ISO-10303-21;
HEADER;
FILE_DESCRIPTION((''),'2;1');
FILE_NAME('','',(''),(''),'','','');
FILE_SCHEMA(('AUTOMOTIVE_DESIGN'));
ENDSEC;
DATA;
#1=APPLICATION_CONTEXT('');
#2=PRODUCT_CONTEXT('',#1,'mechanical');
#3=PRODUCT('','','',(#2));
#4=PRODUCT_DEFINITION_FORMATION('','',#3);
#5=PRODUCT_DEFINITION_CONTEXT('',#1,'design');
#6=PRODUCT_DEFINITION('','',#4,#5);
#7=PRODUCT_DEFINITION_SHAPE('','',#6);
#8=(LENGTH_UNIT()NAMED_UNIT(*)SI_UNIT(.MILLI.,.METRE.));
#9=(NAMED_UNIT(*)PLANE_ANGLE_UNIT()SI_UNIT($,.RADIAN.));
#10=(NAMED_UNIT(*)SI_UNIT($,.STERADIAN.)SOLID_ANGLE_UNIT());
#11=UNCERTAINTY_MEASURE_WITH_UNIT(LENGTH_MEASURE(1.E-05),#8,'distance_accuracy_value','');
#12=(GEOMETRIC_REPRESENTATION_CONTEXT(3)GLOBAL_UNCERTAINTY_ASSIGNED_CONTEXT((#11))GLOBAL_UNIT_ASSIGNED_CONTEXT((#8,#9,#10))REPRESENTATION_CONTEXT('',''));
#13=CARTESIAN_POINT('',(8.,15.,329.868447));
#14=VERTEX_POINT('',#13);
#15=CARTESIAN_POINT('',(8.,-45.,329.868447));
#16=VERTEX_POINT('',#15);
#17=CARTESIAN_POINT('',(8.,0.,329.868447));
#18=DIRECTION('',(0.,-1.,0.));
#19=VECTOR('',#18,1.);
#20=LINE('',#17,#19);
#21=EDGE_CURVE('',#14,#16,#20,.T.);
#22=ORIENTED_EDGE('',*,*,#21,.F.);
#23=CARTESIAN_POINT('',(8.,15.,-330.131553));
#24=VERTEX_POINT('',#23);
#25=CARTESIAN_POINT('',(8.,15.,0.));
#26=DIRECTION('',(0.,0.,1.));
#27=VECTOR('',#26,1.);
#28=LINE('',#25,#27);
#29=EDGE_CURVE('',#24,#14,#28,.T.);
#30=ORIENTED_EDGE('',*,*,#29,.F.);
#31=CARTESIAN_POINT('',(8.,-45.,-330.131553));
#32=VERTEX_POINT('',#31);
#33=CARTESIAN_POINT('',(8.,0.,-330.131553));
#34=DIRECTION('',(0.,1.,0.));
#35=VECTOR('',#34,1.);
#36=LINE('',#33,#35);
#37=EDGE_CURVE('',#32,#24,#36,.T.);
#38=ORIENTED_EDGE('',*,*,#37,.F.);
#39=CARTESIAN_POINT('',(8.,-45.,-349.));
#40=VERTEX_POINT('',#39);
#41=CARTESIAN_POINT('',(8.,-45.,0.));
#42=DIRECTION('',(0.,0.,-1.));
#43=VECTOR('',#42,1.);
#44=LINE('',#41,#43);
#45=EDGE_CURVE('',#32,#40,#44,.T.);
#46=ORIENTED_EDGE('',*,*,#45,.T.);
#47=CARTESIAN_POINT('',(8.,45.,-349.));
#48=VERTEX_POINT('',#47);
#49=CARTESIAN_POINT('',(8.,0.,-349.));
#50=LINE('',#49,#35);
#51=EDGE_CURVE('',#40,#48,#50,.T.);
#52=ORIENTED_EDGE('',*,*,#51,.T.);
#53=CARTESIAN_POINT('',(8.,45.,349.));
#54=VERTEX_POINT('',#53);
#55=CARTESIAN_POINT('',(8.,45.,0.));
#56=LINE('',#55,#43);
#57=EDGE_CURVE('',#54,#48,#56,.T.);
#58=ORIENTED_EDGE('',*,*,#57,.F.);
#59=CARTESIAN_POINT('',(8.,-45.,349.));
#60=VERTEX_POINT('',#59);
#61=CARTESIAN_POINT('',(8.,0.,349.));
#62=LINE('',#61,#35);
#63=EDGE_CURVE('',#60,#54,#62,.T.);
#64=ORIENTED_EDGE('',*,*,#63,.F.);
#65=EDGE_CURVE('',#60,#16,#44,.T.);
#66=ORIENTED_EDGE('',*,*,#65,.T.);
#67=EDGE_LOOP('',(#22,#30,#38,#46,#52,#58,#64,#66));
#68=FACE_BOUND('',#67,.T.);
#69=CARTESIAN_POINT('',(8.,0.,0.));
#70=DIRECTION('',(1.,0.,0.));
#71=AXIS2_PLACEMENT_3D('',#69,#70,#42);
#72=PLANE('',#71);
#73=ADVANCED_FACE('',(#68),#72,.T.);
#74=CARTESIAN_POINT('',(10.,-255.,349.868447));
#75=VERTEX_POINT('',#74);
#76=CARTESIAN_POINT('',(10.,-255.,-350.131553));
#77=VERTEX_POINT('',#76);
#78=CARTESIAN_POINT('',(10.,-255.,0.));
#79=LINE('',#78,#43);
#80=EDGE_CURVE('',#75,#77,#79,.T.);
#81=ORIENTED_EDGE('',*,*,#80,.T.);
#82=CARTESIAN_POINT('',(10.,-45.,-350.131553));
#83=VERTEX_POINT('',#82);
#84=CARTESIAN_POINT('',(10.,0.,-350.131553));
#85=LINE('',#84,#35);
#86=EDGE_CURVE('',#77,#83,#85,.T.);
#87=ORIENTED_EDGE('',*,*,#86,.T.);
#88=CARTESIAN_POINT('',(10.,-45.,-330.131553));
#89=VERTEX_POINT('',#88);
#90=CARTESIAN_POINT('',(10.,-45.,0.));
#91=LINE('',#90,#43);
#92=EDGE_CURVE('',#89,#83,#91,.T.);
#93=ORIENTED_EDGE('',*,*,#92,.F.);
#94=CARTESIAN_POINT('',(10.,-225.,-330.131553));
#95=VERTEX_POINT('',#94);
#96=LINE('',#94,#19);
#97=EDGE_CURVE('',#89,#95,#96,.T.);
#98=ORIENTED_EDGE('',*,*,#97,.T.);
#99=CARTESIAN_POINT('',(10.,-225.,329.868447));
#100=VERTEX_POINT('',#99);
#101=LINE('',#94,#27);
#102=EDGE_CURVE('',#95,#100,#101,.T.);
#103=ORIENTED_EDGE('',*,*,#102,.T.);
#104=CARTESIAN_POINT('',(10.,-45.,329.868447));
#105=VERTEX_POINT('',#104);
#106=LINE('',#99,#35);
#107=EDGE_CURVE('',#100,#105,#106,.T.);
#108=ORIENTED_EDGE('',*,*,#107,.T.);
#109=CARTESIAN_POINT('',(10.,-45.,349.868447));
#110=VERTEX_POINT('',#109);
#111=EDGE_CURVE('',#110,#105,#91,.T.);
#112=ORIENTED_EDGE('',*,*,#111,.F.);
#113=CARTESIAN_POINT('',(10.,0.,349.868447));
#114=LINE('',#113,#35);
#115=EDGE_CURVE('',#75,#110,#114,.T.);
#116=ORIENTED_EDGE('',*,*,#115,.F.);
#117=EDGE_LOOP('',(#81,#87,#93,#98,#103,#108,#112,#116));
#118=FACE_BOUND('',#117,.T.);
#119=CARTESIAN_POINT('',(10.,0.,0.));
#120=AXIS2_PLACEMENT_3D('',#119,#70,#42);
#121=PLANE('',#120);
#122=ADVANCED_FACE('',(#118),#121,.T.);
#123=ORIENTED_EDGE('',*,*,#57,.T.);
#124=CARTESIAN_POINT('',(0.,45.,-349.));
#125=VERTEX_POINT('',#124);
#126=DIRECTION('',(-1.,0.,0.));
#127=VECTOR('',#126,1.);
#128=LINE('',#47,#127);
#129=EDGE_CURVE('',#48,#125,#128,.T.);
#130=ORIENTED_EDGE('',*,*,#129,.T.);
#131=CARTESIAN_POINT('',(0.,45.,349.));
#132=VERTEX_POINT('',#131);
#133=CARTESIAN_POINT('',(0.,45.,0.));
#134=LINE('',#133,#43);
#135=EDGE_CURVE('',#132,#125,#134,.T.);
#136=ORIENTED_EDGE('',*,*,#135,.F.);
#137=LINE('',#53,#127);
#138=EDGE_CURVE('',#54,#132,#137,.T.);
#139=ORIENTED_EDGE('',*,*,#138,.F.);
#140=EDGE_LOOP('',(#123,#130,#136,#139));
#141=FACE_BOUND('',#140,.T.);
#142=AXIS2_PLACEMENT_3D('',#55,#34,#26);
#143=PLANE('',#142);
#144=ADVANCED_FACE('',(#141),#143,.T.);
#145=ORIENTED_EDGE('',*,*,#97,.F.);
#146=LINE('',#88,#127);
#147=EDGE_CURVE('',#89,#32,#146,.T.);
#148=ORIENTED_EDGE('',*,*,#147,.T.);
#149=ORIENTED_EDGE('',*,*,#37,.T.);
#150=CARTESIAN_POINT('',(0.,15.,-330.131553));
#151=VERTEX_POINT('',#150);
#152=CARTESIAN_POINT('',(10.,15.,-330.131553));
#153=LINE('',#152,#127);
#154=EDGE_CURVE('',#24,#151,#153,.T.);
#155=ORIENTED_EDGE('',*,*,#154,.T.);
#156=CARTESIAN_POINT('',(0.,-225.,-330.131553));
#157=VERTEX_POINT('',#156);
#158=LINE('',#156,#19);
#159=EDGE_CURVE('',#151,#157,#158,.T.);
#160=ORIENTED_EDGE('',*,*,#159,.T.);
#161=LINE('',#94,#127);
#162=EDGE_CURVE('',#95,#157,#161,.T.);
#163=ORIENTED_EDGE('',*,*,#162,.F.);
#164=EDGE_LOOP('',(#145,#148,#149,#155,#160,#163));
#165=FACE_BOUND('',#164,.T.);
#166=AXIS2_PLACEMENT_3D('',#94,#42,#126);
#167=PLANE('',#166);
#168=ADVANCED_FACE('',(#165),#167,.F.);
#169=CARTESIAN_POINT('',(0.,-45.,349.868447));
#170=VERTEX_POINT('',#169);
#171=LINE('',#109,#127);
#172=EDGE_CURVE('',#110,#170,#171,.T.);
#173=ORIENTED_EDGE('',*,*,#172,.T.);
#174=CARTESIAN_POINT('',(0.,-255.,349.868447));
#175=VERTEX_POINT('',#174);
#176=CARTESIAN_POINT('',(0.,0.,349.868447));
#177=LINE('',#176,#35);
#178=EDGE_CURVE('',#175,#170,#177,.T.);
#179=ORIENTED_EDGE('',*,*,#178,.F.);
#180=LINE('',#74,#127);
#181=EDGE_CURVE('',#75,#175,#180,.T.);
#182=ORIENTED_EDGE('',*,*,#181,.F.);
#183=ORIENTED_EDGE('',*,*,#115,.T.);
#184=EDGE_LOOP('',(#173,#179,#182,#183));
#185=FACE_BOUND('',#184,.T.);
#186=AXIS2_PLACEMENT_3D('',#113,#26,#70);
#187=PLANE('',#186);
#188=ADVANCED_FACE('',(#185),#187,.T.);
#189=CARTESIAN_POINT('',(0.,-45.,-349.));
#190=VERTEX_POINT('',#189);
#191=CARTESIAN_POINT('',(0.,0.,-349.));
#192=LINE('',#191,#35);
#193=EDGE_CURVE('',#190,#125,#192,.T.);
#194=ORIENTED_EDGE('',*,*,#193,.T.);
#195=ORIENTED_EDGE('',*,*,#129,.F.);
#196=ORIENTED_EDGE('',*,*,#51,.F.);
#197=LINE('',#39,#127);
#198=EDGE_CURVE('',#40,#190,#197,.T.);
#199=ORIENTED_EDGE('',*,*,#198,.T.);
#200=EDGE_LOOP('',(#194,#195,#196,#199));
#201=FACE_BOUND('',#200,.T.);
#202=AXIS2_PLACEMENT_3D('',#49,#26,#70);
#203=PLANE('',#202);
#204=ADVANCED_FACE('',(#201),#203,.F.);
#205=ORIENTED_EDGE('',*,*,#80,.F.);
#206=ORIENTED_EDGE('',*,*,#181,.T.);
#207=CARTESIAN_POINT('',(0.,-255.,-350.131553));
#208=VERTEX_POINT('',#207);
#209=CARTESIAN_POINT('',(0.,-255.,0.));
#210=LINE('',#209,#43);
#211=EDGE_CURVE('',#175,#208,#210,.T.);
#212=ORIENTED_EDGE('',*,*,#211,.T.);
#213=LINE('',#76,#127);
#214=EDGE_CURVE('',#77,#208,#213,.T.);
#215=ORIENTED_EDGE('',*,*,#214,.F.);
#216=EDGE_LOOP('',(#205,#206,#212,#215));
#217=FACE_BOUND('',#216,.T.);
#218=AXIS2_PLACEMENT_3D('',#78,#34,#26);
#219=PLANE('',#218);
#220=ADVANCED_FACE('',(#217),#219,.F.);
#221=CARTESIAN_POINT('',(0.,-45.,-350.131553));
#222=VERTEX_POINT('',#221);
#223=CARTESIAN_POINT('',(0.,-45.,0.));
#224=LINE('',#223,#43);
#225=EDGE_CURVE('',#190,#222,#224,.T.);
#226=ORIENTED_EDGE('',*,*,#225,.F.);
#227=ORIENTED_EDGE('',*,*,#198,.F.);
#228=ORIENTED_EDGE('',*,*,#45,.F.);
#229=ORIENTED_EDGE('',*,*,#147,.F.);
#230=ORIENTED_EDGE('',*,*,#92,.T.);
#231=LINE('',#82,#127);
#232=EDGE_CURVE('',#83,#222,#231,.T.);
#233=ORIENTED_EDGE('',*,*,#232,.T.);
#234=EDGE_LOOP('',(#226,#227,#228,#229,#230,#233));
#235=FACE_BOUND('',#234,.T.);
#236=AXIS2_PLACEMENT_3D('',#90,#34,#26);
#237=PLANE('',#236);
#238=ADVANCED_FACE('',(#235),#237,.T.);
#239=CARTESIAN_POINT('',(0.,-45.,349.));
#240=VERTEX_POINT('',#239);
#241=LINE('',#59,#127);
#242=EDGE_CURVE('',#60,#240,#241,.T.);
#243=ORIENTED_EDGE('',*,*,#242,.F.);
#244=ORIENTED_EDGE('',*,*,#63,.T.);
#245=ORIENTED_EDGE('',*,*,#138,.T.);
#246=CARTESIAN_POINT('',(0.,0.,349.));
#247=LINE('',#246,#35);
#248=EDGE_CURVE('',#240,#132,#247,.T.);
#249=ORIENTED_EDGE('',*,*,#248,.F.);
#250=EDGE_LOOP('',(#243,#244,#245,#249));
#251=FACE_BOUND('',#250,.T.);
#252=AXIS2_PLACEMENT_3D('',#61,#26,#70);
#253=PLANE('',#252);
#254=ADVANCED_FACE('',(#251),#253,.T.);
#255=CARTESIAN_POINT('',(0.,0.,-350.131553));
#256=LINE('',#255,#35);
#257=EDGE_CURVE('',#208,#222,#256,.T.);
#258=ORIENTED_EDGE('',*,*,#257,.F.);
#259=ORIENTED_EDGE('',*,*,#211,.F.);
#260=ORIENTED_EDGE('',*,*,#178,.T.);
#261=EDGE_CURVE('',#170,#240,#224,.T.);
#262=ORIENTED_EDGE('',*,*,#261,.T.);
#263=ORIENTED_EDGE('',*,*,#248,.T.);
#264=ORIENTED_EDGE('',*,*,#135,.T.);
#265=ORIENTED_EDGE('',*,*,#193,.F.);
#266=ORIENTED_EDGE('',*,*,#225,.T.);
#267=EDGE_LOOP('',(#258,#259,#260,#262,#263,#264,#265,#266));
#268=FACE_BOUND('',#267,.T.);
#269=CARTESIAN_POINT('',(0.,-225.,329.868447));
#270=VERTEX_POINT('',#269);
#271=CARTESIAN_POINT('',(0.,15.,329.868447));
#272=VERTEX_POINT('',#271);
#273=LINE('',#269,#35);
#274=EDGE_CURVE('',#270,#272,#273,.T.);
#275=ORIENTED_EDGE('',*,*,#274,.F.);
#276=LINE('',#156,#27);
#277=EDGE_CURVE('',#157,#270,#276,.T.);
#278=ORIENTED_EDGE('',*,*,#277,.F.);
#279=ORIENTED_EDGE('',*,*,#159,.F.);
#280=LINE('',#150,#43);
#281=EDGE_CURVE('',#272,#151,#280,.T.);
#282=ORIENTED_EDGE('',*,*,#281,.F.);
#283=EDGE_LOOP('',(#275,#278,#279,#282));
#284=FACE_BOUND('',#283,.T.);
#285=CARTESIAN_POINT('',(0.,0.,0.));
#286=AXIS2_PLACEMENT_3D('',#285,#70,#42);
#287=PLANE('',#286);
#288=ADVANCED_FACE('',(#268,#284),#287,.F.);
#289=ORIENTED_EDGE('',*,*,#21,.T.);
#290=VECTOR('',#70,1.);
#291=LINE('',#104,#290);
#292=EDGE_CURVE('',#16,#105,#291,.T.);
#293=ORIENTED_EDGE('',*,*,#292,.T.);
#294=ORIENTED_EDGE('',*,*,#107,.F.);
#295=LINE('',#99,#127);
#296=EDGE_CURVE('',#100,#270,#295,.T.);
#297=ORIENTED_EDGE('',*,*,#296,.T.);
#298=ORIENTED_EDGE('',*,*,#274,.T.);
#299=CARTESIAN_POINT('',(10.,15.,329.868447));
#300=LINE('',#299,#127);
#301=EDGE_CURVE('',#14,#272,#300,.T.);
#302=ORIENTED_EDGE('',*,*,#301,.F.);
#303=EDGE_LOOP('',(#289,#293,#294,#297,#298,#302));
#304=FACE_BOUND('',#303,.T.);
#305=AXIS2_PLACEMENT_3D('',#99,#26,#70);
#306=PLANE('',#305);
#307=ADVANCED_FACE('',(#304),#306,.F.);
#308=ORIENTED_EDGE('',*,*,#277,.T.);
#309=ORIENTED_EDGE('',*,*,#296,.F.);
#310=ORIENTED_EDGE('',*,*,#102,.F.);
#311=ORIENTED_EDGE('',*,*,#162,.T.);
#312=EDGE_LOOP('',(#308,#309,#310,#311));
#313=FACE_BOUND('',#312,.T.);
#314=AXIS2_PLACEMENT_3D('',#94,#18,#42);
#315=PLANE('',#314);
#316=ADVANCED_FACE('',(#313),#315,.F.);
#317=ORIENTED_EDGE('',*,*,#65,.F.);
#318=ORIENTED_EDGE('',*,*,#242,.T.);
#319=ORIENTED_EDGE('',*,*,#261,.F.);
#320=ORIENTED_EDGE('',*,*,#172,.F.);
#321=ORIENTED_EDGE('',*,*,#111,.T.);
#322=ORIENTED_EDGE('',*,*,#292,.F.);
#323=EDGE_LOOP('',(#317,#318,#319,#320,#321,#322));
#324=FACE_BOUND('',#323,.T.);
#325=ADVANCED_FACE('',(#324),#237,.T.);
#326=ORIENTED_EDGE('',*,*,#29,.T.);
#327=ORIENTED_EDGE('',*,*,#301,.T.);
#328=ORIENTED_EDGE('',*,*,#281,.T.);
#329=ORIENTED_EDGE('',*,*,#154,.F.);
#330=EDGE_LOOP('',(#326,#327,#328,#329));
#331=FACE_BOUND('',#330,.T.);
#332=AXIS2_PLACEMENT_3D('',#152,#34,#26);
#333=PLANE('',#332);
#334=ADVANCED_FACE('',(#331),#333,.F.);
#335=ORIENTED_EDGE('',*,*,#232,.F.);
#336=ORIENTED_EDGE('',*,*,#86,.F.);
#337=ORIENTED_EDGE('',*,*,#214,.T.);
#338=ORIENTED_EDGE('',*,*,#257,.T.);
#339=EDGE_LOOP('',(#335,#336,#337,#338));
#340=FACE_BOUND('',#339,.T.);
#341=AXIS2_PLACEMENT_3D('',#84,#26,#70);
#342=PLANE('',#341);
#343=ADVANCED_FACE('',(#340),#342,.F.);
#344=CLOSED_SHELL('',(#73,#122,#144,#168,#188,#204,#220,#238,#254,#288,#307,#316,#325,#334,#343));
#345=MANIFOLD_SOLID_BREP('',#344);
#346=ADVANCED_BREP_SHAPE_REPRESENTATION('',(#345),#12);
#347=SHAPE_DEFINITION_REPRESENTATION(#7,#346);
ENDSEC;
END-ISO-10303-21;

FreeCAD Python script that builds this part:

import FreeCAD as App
import Part
import Sketcher

V = App.Vector
Q = App.Units.Quantity

doc = App.newDocument("Part")
body = doc.addObject("PartDesign::Body", "Body")

sketch1 = body.newObject("Sketcher::SketchObject", "Sketch")
sketch1.AttachmentSupport = (doc.getObject("YZ_Plane"), [""])
sketch1.MapMode = "FlatFace"
sketch1.addGeometry([
    Part.LineSegment(V(-45, 350, 0), V(-255, 350, 0)),
    Part.LineSegment(V(-255, 350, 0), V(-255, -350, 0)),
    Part.LineSegment(V(-255, -350, 0), V(-45, -350, 0)),
    Part.LineSegment(V(-45, -350, 0), V(-45, 350, 0)),
], False)
sketch1.addConstraint([
    Sketcher.Constraint("Coincident", 0, 2, 1, 1),
    Sketcher.Constraint("Coincident", 1, 2, 2, 1),
    Sketcher.Constraint("Coincident", 2, 2, 3, 1),
    Sketcher.Constraint("Coincident", 3, 2, 0, 1),
    Sketcher.Constraint("Horizontal", 0),
    Sketcher.Constraint("Vertical", 1),
    Sketcher.Constraint("Horizontal", 2),
    Sketcher.Constraint("Vertical", 3),
    Sketcher.Constraint("DistanceX", 0, 2, 0, 1, Q("210 mm")),
    Sketcher.Constraint("DistanceY", 1, 2, 1, 1, Q("700 mm")),
    Sketcher.Constraint("DistanceX", 0, 2, -1, 1, Q("255 mm")),
    Sketcher.Constraint("DistanceY", -1, 1, 0, 2, Q("349.868447 mm")),
])
pad1 = body.newObject("PartDesign::Pad", "Pad")
pad1.Profile = sketch1
pad1.Length = 10

sketch2 = body.newObject("Sketcher::SketchObject", "Sketch001")
sketch2.AttachmentSupport = (doc.getObject("YZ_Plane"), [""])
sketch2.MapMode = "FlatFace"
sketch2.addGeometry([
    Part.LineSegment(V(45, 349, 0), V(-45, 349, 0)),
    Part.LineSegment(V(-45, 349, 0), V(-45, -349, 0)),
    Part.LineSegment(V(-45, -349, 0), V(45, -349, 0)),
    Part.LineSegment(V(45, -349, 0), V(45, 349, 0)),
], False)
sketch2.addConstraint([
    Sketcher.Constraint("Coincident", 0, 2, 1, 1),
    Sketcher.Constraint("Coincident", 1, 2, 2, 1),
    Sketcher.Constraint("Coincident", 2, 2, 3, 1),
    Sketcher.Constraint("Coincident", 3, 2, 0, 1),
    Sketcher.Constraint("Horizontal", 0),
    Sketcher.Constraint("Vertical", 1),
    Sketcher.Constraint("Horizontal", 2),
    Sketcher.Constraint("Vertical", 3),
    Sketcher.Constraint("Symmetric", 0, 2, 2, 2, -1, 1),
    Sketcher.Constraint("DistanceX", 0, 2, 0, 1, Q("90 mm")),
    Sketcher.Constraint("DistanceY", 1, 2, 1, 1, Q("698 mm")),
])
pad2 = body.newObject("PartDesign::Pad", "Pad001")
pad2.Profile = sketch2
pad2.Length = 8

sketch3 = body.newObject("Sketcher::SketchObject", "Sketch002")
sketch3.AttachmentSupport = (doc.getObject("YZ_Plane"), [""])
sketch3.MapMode = "FlatFace"
sketch3.addGeometry([
    Part.LineSegment(V(15, -330, 0), V(-225, -330, 0)),
    Part.LineSegment(V(-225, -330, 0), V(-225, 330, 0)),
    Part.LineSegment(V(-225, 330, 0), V(15, 330, 0)),
    Part.LineSegment(V(15, 330, 0), V(15, -330, 0)),
], False)
sketch3.addConstraint([
    Sketcher.Constraint("Coincident", 0, 2, 1, 1),
    Sketcher.Constraint("Coincident", 1, 2, 2, 1),
    Sketcher.Constraint("Coincident", 2, 2, 3, 1),
    Sketcher.Constraint("Coincident", 3, 2, 0, 1),
    Sketcher.Constraint("Horizontal", 0),
    Sketcher.Constraint("Vertical", 1),
    Sketcher.Constraint("Horizontal", 2),
    Sketcher.Constraint("Vertical", 3),
    Sketcher.Constraint("DistanceX", 0, 2, 0, 1, Q("240 mm")),
    Sketcher.Constraint("DistanceY", 1, 1, 1, 2, Q("660 mm")),
    Sketcher.Constraint("DistanceX", 0, 2, -1, 1, Q("225 mm")),
    Sketcher.Constraint("DistanceY", 0, 2, -1, 1, Q("330.131553 mm")),
])
pocket1 = body.newObject("PartDesign::Pocket", "Pocket")
pocket1.Profile = sketch3
pocket1.Length = 10
pocket1.Reversed = True

doc.recompute()
